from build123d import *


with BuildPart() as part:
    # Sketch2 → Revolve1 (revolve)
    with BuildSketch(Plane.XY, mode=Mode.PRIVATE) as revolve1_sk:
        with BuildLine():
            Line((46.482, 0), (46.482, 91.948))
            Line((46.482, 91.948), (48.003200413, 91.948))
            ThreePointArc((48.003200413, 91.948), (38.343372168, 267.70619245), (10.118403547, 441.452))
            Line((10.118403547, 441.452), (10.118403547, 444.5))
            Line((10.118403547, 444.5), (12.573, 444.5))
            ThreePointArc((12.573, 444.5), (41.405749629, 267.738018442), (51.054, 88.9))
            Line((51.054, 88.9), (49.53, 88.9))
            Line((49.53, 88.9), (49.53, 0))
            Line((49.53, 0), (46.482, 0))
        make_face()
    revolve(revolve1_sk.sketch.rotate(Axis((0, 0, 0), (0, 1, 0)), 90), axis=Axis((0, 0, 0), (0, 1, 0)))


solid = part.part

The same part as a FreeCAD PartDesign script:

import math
import FreeCAD as App
import Part
import Sketcher
from FreeCAD import Vector
Q = App.Units.Quantity

doc = App.newDocument("Part")
body = doc.addObject("PartDesign::Body", "Body")

sketch1 = body.newObject("Sketcher::SketchObject", "Sketch")
sketch1.AttachmentSupport = (doc.getObject("XY_Plane"), [""])
sketch1.MapMode = "FlatFace"
sketch1.addGeometry([
    Part.LineSegment(Vector(46.5, 91.9, 0), Vector(46.5, 0, 0)),
    Part.LineSegment(Vector(46.5, 0, 0), Vector(49.5, 0, 0)),
    Part.LineSegment(Vector(49.5, 0, 0), Vector(49.5, 88.9, 0)),
    Part.LineSegment(Vector(49.5, 88.9, 0), Vector(51.1, 88.9, 0)),
    Part.ArcOfCircle(Part.Circle(Vector(-1611.2, 88.9, 0), Vector(0, 0, 1), 1662.3), math.radians(0), math.radians(12.35)),
    Part.LineSegment(Vector(12.6, 444.5, 0), Vector(10.1, 444.5, 0)),
    Part.LineSegment(Vector(10.1, 444.5, 0), Vector(10.1, 441.5, 0)),
    Part.ArcOfCircle(Part.Circle(Vector(-1611.2, 88.9, 0), Vector(0, 0, 1), 1659.2), math.radians(0.11), math.radians(12.27)),
    Part.LineSegment(Vector(48, 91.9, 0), Vector(46.5, 91.9, 0)),
], False)
sketch1.addConstraint([
    Sketcher.Constraint("Coincident", 0, 2, 1, 1),
    Sketcher.Constraint("Coincident", 1, 2, 2, 1),
    Sketcher.Constraint("Coincident", 2, 2, 3, 1),
    Sketcher.Constraint("Coincident", 3, 2, 4, 1),
    Sketcher.Constraint("Coincident", 4, 2, 5, 1),
    Sketcher.Constraint("Coincident", 5, 2, 6, 1),
    Sketcher.Constraint("Coincident", 6, 2, 7, 2),
    Sketcher.Constraint("Coincident", 7, 1, 8, 1),
    Sketcher.Constraint("Coincident", 8, 2, 0, 1),
    Sketcher.Constraint("Vertical", 0),
    Sketcher.Constraint("Horizontal", 1),
    Sketcher.Constraint("Vertical", 2),
    Sketcher.Constraint("Horizontal", 3),
    Sketcher.Constraint("Horizontal", 5),
    Sketcher.Constraint("Vertical", 6),
    Sketcher.Constraint("Horizontal", 8),
    Sketcher.Constraint("Coincident", 7, 3, 4, 3),
    Sketcher.Constraint("PointOnObject", 0, 2, -1),
    Sketcher.Constraint("Horizontal", 7, 3, 2, 2),
    Sketcher.Constraint("Equal", 1, 6),
    Sketcher.Constraint("DistanceY", 2, 1, 2, 2, Q("3.5 in")),
    Sketcher.Constraint("DistanceY", 2, 2, 5, 2, Q("14 in")),
    Sketcher.Constraint("DistanceX", 1, 1, 1, 2, Q("0.12 in")),
    Sketcher.Constraint("DistanceX", 3, 1, 3, 2, Q("0.06 in")),
    Sketcher.Constraint("DistanceY", 0, 2, 0, 1, Q("3.62 in")),
    Sketcher.Constraint("DistanceX", -1, 1, 0, 2, Q("1.83 in")),
    Sketcher.Constraint("DistanceX", 8, 2, 8, 1, 1.5212),
    Sketcher.Constraint("Radius", 4, 1662.276804),
])
revolution = body.newObject("PartDesign::Revolution", "Revolution")
revolution.Profile = sketch1
revolution.ReferenceAxis = (sketch1, ["V_Axis"])
revolution.Angle = 360

doc.recompute()
